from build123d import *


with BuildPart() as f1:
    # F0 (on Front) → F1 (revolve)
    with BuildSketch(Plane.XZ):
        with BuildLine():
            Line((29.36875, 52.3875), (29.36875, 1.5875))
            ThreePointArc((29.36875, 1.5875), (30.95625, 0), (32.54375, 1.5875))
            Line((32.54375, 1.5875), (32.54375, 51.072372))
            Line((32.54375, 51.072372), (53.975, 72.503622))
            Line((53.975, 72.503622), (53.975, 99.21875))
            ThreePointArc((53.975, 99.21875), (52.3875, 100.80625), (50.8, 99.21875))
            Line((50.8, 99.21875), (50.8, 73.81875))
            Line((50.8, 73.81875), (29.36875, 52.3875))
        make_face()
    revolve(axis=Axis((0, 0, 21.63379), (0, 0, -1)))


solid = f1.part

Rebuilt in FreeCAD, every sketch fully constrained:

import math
import FreeCAD as App
import Part
import Sketcher
from FreeCAD import Vector
Q = App.Units.Quantity

doc = App.newDocument("Part")
params = doc.addObject("Spreadsheet::Sheet", "Params")
for row, (alias, value) in enumerate([
    ("sketch1_height", "2 in"),
    ("sketch1_height2", "1 in"),
    ("sketch1_radius", "0.0625 in"),
    ("revolution_angle", "360 deg"),
], start=1):
    params.set(f"A{row}", alias)
    params.set(f"B{row}", "=" + value)
    params.setAlias(f"B{row}", alias)

body = doc.addObject("PartDesign::Body", "Body")

sketch1 = body.newObject("Sketcher::SketchObject", "Sketch")
sketch1.AttachmentSupport = (doc.getObject("XZ_Plane"), [""])
sketch1.MapMode = "FlatFace"
sketch1.addGeometry([
    Part.LineSegment(Vector(29.4, 52.4, 0), Vector(29.4, 1.6, 0)),
    Part.ArcOfCircle(Part.Circle(Vector(31, 1.6, 0), Vector(0, 0, 1), 1.6), math.radians(180), math.radians(360)),
    Part.LineSegment(Vector(32.5, 1.6, 0), Vector(32.5, 51.1, 0)),
    Part.LineSegment(Vector(32.5, 51.1, 0), Vector(54, 72.5, 0)),
    Part.LineSegment(Vector(54, 72.5, 0), Vector(54, 99.2, 0)),
    Part.ArcOfCircle(Part.Circle(Vector(52.4, 99.2, 0), Vector(0, 0, 1), 1.6), math.radians(0), math.radians(180)),
    Part.LineSegment(Vector(50.8, 99.2, 0), Vector(50.8, 73.8, 0)),
    Part.LineSegment(Vector(50.8, 73.8, 0), Vector(29.4, 52.4, 0)),
], False)
sketch1.addConstraint([
    Sketcher.Constraint("Tangent", 0, 2, 1, 1),
    Sketcher.Constraint("Tangent", 1, 2, 2, 1),
    Sketcher.Constraint("Coincident", 2, 2, 3, 1),
    Sketcher.Constraint("Coincident", 3, 2, 4, 1),
    Sketcher.Constraint("Tangent", 4, 2, 5, 1),
    Sketcher.Constraint("Tangent", 5, 2, 6, 1),
    Sketcher.Constraint("Coincident", 6, 2, 7, 1),
    Sketcher.Constraint("Coincident", 7, 2, 0, 1),
    Sketcher.Constraint("Vertical", 0),
    Sketcher.Constraint("Vertical", 2),
    Sketcher.Constraint("Vertical", 4),
    Sketcher.Constraint("Vertical", 6),
    Sketcher.Constraint("Equal", 1, 5),
    Sketcher.Constraint("Parallel", 3, 7),
    Sketcher.Constraint("DistanceY", 0, 2, 0, 1, Q("2 in")),
    Sketcher.Constraint("DistanceY", 6, 2, 6, 1, Q("1 in")),
    Sketcher.Constraint("DistanceX", -1, 1, 5, 2, Q("2 in")),
    Sketcher.Constraint("Angle", 3, Q("45 deg")),
    Sketcher.Constraint("Radius", 1, Q("0.0625 in")),
    Sketcher.Constraint("DistanceX", -1, 1, 1, 3, Q("1.21875 in")),
    Sketcher.Constraint("DistanceY", -1, 1, 1, 3, Q("0.0625 in")),
    Sketcher.Constraint("DistanceY", 4, 1, 4, 2, 26.715128),
])
sketch1.setExpression("Constraints[14]", "Params.sketch1_height")
sketch1.setExpression("Constraints[15]", "Params.sketch1_height2")
sketch1.setExpression("Constraints[18]", "Params.sketch1_radius")
revolution = body.newObject("PartDesign::Revolution", "Revolution")
revolution.Profile = sketch1
revolution.ReferenceAxis = (sketch1, ["V_Axis"])
revolution.setExpression("Angle", "Params.revolution_angle")

doc.recompute()
